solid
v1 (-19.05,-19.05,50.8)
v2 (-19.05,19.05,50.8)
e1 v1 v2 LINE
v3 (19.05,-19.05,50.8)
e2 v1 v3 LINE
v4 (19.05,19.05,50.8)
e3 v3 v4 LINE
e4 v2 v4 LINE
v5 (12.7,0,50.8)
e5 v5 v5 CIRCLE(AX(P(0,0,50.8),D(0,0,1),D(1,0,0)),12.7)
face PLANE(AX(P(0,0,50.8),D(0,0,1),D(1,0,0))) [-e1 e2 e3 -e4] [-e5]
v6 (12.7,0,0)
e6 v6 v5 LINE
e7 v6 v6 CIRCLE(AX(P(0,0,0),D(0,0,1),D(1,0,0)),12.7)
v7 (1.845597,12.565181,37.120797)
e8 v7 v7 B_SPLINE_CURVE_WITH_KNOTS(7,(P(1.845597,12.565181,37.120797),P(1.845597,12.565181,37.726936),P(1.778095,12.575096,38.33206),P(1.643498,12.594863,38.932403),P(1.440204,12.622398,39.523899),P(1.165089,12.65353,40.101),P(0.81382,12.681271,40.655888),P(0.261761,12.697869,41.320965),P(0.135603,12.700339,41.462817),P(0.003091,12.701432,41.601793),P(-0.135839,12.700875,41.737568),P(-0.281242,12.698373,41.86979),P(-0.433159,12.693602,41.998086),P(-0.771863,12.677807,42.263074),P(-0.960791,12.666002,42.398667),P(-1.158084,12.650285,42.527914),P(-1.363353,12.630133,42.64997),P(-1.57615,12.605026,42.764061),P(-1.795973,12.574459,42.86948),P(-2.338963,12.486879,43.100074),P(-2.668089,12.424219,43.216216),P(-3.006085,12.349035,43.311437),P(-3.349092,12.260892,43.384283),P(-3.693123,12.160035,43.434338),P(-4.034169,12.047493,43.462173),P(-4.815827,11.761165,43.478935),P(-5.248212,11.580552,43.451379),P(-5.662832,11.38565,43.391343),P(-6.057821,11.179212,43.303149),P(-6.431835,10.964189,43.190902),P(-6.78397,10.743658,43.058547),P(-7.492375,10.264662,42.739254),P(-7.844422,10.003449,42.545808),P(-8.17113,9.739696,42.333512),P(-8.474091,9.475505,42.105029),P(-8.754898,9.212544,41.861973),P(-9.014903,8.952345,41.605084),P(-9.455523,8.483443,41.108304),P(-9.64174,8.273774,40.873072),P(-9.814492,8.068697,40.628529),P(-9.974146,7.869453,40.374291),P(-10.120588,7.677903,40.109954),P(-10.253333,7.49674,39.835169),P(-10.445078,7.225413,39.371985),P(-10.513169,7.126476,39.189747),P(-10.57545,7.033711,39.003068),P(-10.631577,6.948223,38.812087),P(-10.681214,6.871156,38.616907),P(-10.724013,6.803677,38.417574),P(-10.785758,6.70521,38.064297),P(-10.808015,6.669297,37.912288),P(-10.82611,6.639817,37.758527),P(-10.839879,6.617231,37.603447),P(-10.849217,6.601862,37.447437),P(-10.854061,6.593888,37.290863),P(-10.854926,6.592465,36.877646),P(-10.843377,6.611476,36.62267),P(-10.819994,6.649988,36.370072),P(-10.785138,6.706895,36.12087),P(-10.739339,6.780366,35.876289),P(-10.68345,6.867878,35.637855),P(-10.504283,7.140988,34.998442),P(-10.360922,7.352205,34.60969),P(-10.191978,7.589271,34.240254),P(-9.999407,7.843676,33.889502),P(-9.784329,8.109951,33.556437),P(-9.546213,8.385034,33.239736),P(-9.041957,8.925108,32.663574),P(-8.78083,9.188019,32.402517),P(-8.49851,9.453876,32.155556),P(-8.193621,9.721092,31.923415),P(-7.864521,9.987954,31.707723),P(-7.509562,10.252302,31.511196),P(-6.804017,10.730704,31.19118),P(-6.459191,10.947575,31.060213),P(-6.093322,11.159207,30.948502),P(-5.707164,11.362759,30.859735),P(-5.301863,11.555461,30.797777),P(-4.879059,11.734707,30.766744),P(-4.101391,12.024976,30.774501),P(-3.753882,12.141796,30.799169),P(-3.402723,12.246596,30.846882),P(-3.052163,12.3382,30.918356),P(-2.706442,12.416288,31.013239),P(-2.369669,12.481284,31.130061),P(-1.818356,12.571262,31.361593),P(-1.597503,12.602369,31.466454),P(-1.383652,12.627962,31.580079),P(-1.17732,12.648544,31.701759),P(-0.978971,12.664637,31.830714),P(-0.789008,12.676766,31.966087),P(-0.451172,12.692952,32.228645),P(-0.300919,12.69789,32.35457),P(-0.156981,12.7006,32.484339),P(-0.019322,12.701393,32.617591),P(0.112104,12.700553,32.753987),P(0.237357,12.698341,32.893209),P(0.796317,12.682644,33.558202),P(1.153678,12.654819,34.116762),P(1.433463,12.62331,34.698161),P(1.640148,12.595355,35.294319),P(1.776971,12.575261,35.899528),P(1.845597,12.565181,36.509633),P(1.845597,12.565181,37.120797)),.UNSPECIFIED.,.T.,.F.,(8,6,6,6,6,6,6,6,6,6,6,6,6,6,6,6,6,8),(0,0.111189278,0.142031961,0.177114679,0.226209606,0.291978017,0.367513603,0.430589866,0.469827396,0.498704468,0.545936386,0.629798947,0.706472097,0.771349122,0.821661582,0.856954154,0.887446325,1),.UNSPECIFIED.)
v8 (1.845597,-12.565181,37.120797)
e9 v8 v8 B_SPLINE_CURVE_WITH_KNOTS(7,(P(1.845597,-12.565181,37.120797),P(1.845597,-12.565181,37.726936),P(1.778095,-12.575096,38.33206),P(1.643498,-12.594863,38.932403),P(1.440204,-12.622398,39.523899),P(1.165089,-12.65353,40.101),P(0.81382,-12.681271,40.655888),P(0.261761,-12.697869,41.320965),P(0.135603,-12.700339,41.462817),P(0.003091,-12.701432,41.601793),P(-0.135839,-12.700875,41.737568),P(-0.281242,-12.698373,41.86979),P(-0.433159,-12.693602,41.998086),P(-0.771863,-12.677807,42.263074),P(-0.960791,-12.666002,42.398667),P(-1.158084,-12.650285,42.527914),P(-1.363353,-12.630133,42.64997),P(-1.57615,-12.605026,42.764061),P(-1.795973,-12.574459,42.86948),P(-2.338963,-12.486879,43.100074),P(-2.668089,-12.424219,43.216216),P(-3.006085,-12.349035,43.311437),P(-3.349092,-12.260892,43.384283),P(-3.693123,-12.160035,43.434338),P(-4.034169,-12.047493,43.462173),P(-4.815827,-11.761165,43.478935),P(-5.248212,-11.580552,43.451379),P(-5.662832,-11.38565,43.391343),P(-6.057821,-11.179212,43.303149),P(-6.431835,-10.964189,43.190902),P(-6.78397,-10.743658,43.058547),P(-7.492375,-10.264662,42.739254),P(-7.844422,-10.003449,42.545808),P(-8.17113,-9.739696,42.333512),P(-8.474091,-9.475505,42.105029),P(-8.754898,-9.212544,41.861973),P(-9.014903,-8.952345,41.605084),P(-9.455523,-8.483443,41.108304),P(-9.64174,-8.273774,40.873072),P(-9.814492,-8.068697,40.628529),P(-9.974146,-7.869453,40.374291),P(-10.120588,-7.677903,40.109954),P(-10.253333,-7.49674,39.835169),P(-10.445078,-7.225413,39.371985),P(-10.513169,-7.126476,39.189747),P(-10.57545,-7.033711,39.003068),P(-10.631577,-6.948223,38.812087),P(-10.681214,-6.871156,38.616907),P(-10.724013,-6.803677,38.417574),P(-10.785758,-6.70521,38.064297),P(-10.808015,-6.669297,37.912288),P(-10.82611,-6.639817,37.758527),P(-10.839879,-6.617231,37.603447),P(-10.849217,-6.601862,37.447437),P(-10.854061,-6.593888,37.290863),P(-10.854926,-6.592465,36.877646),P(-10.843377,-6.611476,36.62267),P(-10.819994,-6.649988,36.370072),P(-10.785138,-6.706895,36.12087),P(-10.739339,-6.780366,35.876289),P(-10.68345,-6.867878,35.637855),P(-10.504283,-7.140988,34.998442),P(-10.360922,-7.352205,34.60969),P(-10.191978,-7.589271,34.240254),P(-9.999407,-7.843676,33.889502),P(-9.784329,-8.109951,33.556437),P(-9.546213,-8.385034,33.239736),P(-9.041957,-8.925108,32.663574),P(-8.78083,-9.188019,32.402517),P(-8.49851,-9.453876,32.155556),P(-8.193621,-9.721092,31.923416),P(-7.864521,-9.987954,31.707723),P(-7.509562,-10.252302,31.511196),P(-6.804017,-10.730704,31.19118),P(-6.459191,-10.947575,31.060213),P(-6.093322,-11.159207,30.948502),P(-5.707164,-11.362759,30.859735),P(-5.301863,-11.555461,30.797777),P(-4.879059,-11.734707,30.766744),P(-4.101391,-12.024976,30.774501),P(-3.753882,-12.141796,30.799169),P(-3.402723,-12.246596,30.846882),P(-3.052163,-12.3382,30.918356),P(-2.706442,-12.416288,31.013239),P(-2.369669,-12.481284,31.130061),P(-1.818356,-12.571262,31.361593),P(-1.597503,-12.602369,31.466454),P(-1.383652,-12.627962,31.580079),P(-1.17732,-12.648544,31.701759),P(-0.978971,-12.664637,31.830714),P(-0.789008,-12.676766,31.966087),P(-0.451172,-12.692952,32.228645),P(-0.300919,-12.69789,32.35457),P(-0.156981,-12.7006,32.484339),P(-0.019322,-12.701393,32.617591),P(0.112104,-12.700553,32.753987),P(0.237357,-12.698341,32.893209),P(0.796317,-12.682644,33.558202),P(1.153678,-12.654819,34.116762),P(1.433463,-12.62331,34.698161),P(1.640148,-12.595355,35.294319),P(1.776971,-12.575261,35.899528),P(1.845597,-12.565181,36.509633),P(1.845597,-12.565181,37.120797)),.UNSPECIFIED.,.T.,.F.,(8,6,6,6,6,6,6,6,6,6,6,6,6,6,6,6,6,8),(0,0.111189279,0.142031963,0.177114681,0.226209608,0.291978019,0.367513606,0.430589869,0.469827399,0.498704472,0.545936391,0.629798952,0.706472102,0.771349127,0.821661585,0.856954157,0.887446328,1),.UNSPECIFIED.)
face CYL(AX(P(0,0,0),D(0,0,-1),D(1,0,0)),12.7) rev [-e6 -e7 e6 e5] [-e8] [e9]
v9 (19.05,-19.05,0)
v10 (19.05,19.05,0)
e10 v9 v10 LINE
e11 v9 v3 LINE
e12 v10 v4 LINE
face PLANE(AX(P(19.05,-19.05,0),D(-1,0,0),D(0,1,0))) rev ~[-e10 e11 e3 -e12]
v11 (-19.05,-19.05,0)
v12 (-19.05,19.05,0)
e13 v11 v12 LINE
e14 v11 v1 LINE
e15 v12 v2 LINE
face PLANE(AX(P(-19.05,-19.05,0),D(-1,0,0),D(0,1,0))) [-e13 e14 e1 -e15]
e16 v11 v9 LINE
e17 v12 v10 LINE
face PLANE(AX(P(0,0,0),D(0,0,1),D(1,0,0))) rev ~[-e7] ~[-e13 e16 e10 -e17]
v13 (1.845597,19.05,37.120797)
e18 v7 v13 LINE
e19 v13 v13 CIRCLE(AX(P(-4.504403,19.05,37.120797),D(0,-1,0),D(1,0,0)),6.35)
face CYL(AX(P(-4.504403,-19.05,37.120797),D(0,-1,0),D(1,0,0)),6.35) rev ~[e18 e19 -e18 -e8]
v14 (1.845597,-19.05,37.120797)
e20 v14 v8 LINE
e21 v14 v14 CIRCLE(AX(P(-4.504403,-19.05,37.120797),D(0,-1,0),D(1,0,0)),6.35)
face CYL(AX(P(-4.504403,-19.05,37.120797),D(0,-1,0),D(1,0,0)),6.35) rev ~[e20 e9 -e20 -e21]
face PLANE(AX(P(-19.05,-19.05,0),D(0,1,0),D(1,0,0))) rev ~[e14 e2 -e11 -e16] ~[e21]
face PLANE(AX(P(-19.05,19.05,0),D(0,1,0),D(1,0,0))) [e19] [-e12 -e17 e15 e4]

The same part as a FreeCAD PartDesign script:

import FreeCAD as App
import Part
import Sketcher

V = App.Vector
Q = App.Units.Quantity

doc = App.newDocument("Part")
body = doc.addObject("PartDesign::Body", "Body")

# Sketch on XY plane
sketch1 = body.newObject("Sketcher::SketchObject", "Sketch")
sketch1.AttachmentSupport = (doc.getObject("XY_Plane"), [""])
sketch1.MapMode = "FlatFace"
sketch1.addGeometry(Part.LineSegment(V(-19.05, 19.05, 0), V(-19.05, -19.05, 0)), False)
sketch1.addGeometry(Part.LineSegment(V(-19.05, -19.05, 0), V(19.05, -19.05, 0)), False)
sketch1.addGeometry(Part.LineSegment(V(19.05, -19.05, 0), V(19.05, 19.05, 0)), False)
sketch1.addGeometry(Part.LineSegment(V(19.05, 19.05, 0), V(-19.05, 19.05, 0)), False)
sketch1.addGeometry(Part.Circle(V(0, 0, 0), V(0, 0, 1), 12.7), False)
sketch1.addConstraint(Sketcher.Constraint("Coincident", 0, 2, 1, 1))
sketch1.addConstraint(Sketcher.Constraint("Coincident", 1, 2, 2, 1))
sketch1.addConstraint(Sketcher.Constraint("Coincident", 2, 2, 3, 1))
sketch1.addConstraint(Sketcher.Constraint("Coincident", 3, 2, 0, 1))
sketch1.addConstraint(Sketcher.Constraint("Vertical", 0))
sketch1.addConstraint(Sketcher.Constraint("Horizontal", 1))
sketch1.addConstraint(Sketcher.Constraint("Vertical", 2))
sketch1.addConstraint(Sketcher.Constraint("Horizontal", 3))
sketch1.addConstraint(Sketcher.Constraint("Coincident", 4, 3, -1, 1))
sketch1.addConstraint(Sketcher.Constraint("Symmetric", 0, 2, 2, 2, -1, 1))
sketch1.addConstraint(Sketcher.Constraint("Equal", 3, 0))
sketch1.addConstraint(Sketcher.Constraint("Diameter", 4, Q("1 in")))
sketch1.addConstraint(Sketcher.Constraint("DistanceX", 1, 1, 1, 2, Q("1.5 in")))
pad1 = body.newObject("PartDesign::Pad", "Pad")
pad1.Profile = sketch1
pad1.Length = Q("2 in")

# Sketch on XZ plane
sketch2 = body.newObject("Sketcher::SketchObject", "Sketch001")
sketch2.AttachmentSupport = (doc.getObject("XZ_Plane"), [""])
sketch2.MapMode = "FlatFace"
sketch2.AttachmentOffset = App.Placement(V(0, 0, 0.75 * 25.4), App.Rotation())
sketch2.addGeometry(Part.Circle(V(-4.504403, 37.120797, 0), V(0, 0, 1), 6.35), False)
sketch2.addConstraint(Sketcher.Constraint("Diameter", 0, Q("0.5 in")))
sketch2.addConstraint(Sketcher.Constraint("DistanceX", 0, 3, -1, 1, Q("4.504403 mm")))
sketch2.addConstraint(Sketcher.Constraint("DistanceY", -1, 1, 0, 3, Q("37.120797 mm")))
pocket1 = body.newObject("PartDesign::Pocket", "Pocket")
pocket1.Profile = sketch2
pocket1.Type = "ThroughAll"

doc.recompute()
